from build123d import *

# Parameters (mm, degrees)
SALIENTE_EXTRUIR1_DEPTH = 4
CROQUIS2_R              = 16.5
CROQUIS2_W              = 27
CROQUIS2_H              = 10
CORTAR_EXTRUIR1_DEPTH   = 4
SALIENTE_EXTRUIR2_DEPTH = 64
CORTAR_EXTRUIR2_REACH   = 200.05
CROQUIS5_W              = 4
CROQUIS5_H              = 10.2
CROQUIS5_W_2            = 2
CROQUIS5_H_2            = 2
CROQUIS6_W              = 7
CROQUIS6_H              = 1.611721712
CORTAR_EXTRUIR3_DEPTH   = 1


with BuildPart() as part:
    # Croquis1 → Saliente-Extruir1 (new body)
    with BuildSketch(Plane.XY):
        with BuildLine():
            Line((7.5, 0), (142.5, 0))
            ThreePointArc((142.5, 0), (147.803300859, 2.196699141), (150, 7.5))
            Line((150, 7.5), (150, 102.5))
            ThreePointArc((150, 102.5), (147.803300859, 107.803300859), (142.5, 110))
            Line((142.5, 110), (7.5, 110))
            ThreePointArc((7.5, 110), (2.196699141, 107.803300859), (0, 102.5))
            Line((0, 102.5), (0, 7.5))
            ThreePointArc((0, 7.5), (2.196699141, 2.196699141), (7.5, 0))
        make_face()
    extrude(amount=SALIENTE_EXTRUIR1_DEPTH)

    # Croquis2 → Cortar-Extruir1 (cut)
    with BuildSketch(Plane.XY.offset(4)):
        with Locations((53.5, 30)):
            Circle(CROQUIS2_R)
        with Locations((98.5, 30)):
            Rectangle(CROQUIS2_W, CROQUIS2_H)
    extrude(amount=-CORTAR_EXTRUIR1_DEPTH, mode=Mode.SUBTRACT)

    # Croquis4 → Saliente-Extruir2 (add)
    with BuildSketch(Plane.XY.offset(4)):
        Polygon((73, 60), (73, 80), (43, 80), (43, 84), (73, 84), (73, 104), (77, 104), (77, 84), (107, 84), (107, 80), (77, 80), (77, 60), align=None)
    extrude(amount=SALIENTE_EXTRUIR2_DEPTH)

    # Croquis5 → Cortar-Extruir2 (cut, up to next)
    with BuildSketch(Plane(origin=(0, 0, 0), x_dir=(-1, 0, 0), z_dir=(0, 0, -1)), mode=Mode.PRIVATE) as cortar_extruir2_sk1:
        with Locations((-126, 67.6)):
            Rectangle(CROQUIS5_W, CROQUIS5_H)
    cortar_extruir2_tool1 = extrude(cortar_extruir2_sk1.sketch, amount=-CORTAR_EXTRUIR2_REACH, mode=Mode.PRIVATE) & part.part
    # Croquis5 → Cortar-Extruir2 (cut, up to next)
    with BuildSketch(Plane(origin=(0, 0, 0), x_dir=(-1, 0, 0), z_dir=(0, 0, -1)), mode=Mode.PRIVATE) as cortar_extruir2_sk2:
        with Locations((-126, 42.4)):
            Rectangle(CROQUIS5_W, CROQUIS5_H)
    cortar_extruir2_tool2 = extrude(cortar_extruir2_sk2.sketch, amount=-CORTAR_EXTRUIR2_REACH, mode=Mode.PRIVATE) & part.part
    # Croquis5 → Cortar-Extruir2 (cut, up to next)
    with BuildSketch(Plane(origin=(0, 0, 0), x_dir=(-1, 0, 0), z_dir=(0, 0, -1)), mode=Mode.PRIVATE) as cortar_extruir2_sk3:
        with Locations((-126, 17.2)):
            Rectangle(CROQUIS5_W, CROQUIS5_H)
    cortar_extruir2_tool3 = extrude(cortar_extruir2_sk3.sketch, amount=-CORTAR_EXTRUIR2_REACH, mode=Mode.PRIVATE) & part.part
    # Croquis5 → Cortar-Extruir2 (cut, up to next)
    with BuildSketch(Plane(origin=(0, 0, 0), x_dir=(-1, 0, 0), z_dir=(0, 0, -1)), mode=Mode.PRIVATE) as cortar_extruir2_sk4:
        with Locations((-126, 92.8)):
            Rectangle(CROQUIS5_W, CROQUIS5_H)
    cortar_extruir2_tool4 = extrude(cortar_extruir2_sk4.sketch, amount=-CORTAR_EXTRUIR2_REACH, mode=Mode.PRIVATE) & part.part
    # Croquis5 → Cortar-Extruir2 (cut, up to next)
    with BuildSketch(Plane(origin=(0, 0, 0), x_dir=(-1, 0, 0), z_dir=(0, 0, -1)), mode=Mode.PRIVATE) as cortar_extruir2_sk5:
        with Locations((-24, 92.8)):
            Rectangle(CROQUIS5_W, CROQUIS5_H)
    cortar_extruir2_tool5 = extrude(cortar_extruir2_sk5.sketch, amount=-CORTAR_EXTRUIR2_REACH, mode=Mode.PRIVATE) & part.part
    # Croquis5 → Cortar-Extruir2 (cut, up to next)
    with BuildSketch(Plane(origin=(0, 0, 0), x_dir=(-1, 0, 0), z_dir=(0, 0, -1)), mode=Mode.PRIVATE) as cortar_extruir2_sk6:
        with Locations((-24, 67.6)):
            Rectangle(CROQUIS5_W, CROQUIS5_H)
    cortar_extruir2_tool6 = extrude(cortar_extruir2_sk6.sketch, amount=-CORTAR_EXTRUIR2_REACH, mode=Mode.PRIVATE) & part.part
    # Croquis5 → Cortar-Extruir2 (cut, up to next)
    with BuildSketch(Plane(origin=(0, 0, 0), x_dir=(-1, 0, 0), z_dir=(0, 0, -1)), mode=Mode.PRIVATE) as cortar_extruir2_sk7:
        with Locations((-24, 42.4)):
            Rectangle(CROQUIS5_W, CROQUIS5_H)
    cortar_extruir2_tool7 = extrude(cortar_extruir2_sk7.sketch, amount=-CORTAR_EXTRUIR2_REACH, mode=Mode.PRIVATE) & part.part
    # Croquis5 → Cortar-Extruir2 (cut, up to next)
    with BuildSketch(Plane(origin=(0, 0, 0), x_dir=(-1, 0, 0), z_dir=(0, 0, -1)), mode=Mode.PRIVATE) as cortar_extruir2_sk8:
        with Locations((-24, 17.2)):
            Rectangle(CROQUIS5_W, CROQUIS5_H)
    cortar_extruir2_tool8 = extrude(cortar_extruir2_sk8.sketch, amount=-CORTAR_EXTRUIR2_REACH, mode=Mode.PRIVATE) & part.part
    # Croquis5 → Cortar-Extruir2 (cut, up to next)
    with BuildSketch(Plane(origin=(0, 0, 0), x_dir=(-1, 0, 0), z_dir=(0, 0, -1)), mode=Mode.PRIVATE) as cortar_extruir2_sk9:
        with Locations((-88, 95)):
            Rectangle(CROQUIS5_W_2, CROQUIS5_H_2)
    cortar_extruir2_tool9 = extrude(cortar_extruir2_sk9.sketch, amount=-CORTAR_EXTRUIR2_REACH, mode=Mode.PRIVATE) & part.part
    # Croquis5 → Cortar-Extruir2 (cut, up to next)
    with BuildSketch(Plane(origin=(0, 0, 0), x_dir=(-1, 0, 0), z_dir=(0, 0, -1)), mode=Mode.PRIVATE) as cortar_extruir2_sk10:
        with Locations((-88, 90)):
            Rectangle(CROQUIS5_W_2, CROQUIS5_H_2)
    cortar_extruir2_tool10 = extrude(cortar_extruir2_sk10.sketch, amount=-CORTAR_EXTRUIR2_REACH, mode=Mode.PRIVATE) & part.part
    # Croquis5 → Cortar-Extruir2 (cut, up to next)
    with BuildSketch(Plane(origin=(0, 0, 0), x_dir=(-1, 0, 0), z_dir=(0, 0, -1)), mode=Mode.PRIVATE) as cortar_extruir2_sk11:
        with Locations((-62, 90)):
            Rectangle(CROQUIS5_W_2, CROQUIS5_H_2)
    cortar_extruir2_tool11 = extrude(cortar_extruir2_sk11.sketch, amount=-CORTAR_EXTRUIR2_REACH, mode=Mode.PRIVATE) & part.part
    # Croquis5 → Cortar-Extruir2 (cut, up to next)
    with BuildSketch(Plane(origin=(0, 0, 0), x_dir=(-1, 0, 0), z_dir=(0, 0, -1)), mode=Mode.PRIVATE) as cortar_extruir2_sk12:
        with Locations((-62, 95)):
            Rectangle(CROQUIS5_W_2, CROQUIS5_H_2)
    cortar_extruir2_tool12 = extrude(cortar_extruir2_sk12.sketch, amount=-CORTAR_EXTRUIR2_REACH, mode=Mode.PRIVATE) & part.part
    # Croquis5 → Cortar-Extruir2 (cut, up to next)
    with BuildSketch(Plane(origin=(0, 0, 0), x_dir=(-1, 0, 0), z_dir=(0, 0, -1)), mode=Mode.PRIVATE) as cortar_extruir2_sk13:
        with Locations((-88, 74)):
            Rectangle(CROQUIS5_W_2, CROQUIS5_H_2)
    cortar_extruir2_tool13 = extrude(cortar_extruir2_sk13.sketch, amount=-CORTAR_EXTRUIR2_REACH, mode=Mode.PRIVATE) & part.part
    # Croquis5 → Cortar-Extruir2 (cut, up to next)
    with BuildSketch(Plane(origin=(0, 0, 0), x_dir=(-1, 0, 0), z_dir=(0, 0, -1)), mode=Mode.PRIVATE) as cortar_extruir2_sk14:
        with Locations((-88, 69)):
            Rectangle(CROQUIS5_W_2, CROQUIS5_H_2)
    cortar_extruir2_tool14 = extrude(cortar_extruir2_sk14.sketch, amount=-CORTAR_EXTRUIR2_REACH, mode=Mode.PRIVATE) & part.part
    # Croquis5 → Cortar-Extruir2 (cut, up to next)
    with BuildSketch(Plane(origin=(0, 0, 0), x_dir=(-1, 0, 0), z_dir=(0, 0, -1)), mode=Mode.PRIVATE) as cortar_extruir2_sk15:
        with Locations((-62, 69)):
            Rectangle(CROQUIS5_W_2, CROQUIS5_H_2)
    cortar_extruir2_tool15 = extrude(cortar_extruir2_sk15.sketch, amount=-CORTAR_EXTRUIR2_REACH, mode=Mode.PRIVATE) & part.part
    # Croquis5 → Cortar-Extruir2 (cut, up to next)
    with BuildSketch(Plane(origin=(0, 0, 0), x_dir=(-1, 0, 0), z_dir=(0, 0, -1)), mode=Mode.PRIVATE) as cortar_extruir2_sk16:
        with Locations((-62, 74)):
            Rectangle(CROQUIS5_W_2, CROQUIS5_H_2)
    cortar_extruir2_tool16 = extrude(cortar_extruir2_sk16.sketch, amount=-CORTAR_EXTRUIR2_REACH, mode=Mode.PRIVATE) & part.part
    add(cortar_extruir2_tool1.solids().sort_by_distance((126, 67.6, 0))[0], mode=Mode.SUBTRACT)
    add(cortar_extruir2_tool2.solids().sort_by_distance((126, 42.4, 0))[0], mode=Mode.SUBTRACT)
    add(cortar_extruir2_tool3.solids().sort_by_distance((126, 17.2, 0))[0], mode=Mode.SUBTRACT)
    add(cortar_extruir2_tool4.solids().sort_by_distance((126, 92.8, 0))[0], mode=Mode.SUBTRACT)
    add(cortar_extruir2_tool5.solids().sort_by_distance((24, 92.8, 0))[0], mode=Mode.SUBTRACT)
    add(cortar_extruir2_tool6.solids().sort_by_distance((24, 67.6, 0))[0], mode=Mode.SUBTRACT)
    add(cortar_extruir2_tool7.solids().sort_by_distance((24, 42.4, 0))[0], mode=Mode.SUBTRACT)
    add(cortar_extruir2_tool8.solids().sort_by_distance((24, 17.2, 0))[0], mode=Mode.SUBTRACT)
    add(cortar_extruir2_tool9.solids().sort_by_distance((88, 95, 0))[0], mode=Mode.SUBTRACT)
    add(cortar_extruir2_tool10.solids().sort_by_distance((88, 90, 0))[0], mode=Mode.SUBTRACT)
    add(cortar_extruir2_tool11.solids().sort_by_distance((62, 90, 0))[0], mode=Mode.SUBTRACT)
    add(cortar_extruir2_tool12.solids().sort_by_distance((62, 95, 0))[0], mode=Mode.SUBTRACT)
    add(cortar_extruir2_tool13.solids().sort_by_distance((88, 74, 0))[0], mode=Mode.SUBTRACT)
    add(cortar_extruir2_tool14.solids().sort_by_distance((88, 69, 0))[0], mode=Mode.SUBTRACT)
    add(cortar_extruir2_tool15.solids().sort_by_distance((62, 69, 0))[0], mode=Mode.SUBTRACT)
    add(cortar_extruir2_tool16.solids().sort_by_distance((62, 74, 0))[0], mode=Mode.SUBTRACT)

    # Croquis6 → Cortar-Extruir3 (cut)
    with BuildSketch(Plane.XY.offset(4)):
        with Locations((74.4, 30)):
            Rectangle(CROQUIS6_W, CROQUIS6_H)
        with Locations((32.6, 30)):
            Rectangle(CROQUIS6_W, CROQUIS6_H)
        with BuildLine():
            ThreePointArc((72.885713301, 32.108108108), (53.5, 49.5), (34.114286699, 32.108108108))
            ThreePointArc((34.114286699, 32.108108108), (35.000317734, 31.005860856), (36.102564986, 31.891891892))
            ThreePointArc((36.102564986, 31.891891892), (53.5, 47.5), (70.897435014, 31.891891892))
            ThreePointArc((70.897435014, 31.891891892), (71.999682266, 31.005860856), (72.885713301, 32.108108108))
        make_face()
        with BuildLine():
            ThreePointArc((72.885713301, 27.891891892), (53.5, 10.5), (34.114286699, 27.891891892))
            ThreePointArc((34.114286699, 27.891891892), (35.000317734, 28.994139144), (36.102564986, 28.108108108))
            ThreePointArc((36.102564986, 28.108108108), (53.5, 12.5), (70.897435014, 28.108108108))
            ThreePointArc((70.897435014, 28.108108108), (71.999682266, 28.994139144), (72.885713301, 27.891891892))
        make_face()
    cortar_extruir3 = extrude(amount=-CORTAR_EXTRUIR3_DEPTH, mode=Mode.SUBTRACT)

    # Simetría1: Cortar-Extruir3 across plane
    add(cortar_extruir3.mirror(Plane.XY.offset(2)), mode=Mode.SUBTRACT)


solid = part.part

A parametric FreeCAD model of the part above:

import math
import FreeCAD as App
import Part
import Sketcher


def add_polygon(sketch, points):
    """Adds a closed chain of lines whose ends are joined by coincident constraints."""
    first, n = sketch.GeometryCount, len(points)
    for a, b in zip(points, points[1:] + points[:1]):
        sketch.addGeometry(Part.LineSegment(App.Vector(*a, 0), App.Vector(*b, 0)), False)
    for i in range(n):
        sketch.addConstraint(Sketcher.Constraint("Coincident", first + i, 2, first + (i + 1) % n, 1))

doc = App.newDocument("Part")
body = doc.addObject("PartDesign::Body", "Body")

# Sketch on XY plane
sketch1 = body.newObject("Sketcher::SketchObject", "Sketch")
sketch1.AttachmentSupport = (doc.getObject("XY_Plane"), [""])
sketch1.MapMode = "FlatFace"
sketch1.addGeometry(Part.LineSegment(App.Vector(8, 0, 0), App.Vector(142, 0, 0)), False)
sketch1.addGeometry(Part.ArcOfCircle(Part.Circle(App.Vector(142, 8, 0), App.Vector(0, 0, 1), 8), math.radians(-90), math.radians(0)), False)
sketch1.addGeometry(Part.LineSegment(App.Vector(150, 8, 0), App.Vector(150, 102, 0)), False)
sketch1.addGeometry(Part.ArcOfCircle(Part.Circle(App.Vector(142, 102, 0), App.Vector(0, 0, 1), 8), math.radians(0), math.radians(90)), False)
sketch1.addGeometry(Part.LineSegment(App.Vector(142, 110, 0), App.Vector(8, 110, 0)), False)
sketch1.addGeometry(Part.ArcOfCircle(Part.Circle(App.Vector(8, 102, 0), App.Vector(0, 0, 1), 8), math.radians(90), math.radians(180)), False)
sketch1.addGeometry(Part.LineSegment(App.Vector(0, 102, 0), App.Vector(0, 8, 0)), False)
sketch1.addGeometry(Part.ArcOfCircle(Part.Circle(App.Vector(8, 8, 0), App.Vector(0, 0, 1), 8), math.radians(180), math.radians(270)), False)
sketch1.addConstraint(Sketcher.Constraint("Tangent", 0, 2, 1, 1))
sketch1.addConstraint(Sketcher.Constraint("Tangent", 1, 2, 2, 1))
sketch1.addConstraint(Sketcher.Constraint("Tangent", 2, 2, 3, 1))
sketch1.addConstraint(Sketcher.Constraint("Tangent", 3, 2, 4, 1))
sketch1.addConstraint(Sketcher.Constraint("Tangent", 4, 2, 5, 1))
sketch1.addConstraint(Sketcher.Constraint("Tangent", 5, 2, 6, 1))
sketch1.addConstraint(Sketcher.Constraint("Tangent", 6, 2, 7, 1))
sketch1.addConstraint(Sketcher.Constraint("Tangent", 7, 2, 0, 1))
sketch1.addConstraint(Sketcher.Constraint("Horizontal", 0))
sketch1.addConstraint(Sketcher.Constraint("Vertical", 2))
sketch1.addConstraint(Sketcher.Constraint("Horizontal", 4))
sketch1.addConstraint(Sketcher.Constraint("Vertical", 6))
sketch1.addConstraint(Sketcher.Constraint("Equal", 1, 3))
sketch1.addConstraint(Sketcher.Constraint("Equal", 3, 5))
sketch1.addConstraint(Sketcher.Constraint("Equal", 5, 7))
sketch1.addConstraint(Sketcher.Constraint("PointOnObject", 0, 2, -1))
sketch1.addConstraint(Sketcher.Constraint("PointOnObject", 5, 2, -2))
sketch1.addConstraint(Sketcher.Constraint("Radius", 1, 7.5))
sketch1.addConstraint(Sketcher.Constraint("DistanceX", 0, 1, 0, 2, 135.0))
sketch1.addConstraint(Sketcher.Constraint("DistanceY", 2, 1, 2, 2, 95.0))
pad1 = body.newObject("PartDesign::Pad", "Pad")
pad1.Profile = sketch1
pad1.Length = 4

# Sketch on XY plane
sketch2 = body.newObject("Sketcher::SketchObject", "Sketch001")
sketch2.AttachmentSupport = (doc.getObject("XY_Plane"), [""])
sketch2.MapMode = "FlatFace"
sketch2.AttachmentOffset = App.Placement(App.Vector(0, 0, 4), App.Rotation())
sketch2.addGeometry(Part.Circle(App.Vector(54, 30, 0), App.Vector(0, 0, 1), 16), False)  # 0
add_polygon(sketch2, [(85, 35), (85, 25), (112, 25), (112, 35)])  # lines 1-4
sketch2.addConstraint(Sketcher.Constraint("Vertical", 1))
sketch2.addConstraint(Sketcher.Constraint("Horizontal", 2))
sketch2.addConstraint(Sketcher.Constraint("Vertical", 3))
sketch2.addConstraint(Sketcher.Constraint("Horizontal", 4))
sketch2.addConstraint(Sketcher.Constraint("Diameter", 0, 33.0))
sketch2.addConstraint(Sketcher.Constraint("DistanceX", 2, 1, 2, 2, 27.0))
sketch2.addConstraint(Sketcher.Constraint("DistanceY", 1, 2, 1, 1, 10.0))
sketch2.addConstraint(Sketcher.Constraint("DistanceY", -1, 1, 0, 3, 30.0))
sketch2.addConstraint(Sketcher.Constraint("DistanceX", -1, 1, 1, 2, 85.0))
sketch2.addConstraint(Sketcher.Constraint("DistanceY", -1, 1, 1, 2, 25.0))
sketch2.addConstraint(Sketcher.Constraint("DistanceX", -1, 1, 0, 3, 53.5))
pocket1 = body.newObject("PartDesign::Pocket", "Pocket")
pocket1.Profile = sketch2
pocket1.Length = 4

# Sketch on XY plane
sketch3 = body.newObject("Sketcher::SketchObject", "Sketch002")
sketch3.AttachmentSupport = (doc.getObject("XY_Plane"), [""])
sketch3.MapMode = "FlatFace"
sketch3.AttachmentOffset = App.Placement(App.Vector(0, 0, 4), App.Rotation())
add_polygon(sketch3, [(73, 80), (73, 60), (77, 60), (77, 80), (107, 80), (107, 84), (77, 84), (77, 104), (73, 104), (73, 84), (43, 84), (43, 80)])  # lines 0-11
sketch3.addConstraint(Sketcher.Constraint("Vertical", 0))
sketch3.addConstraint(Sketcher.Constraint("Horizontal", 1))
sketch3.addConstraint(Sketcher.Constraint("Vertical", 2))
sketch3.addConstraint(Sketcher.Constraint("Horizontal", 3))
sketch3.addConstraint(Sketcher.Constraint("Vertical", 4))
sketch3.addConstraint(Sketcher.Constraint("Horizontal", 5))
sketch3.addConstraint(Sketcher.Constraint("Vertical", 6))
sketch3.addConstraint(Sketcher.Constraint("Horizontal", 7))
sketch3.addConstraint(Sketcher.Constraint("Vertical", 8))
sketch3.addConstraint(Sketcher.Constraint("Horizontal", 9))
sketch3.addConstraint(Sketcher.Constraint("Vertical", 10))
sketch3.addConstraint(Sketcher.Constraint("Horizontal", 11))
sketch3.addConstraint(Sketcher.Constraint("Horizontal", 5, 2, 8, 2))
sketch3.addConstraint(Sketcher.Constraint("Horizontal", 3, 2, 10, 2))
sketch3.addConstraint(Sketcher.Constraint("Vertical", 2, 2, 5, 2))
sketch3.addConstraint(Sketcher.Constraint("Vertical", 0, 2, 7, 2))
sketch3.addConstraint(Sketcher.Constraint("Equal", 5, 9))
sketch3.addConstraint(Sketcher.Constraint("Equal", 7, 4))
sketch3.addConstraint(Sketcher.Constraint("Equal", 2, 6))
sketch3.addConstraint(Sketcher.Constraint("DistanceX", 1, 1, 1, 2, 4.0))
sketch3.addConstraint(Sketcher.Constraint("DistanceX", 3, 1, 3, 2, 30.0))
sketch3.addConstraint(Sketcher.Constraint("DistanceY", 0, 2, 0, 1, 20.0))
sketch3.addConstraint(Sketcher.Constraint("DistanceX", -1, 1, 0, 2, 73.0))
sketch3.addConstraint(Sketcher.Constraint("DistanceY", -1, 1, 0, 2, 60.0))
pad2 = body.newObject("PartDesign::Pad", "Pad001")
pad2.Profile = sketch3
pad2.Length = 64

# Sketch on XY plane
sketch4 = body.newObject("Sketcher::SketchObject", "Sketch003")
sketch4.AttachmentSupport = (doc.getObject("XY_Plane"), [""])
sketch4.MapMode = "FlatFace"
add_polygon(sketch4, [(128, 72.7), (128, 62.5), (124, 62.5), (124, 72.7)])  # lines 0-3
sketch4.addConstraint(Sketcher.Constraint("Vertical", 0))
sketch4.addConstraint(Sketcher.Constraint("Horizontal", 1))
sketch4.addConstraint(Sketcher.Constraint("Vertical", 2))
sketch4.addConstraint(Sketcher.Constraint("Horizontal", 3))
sketch4.addConstraint(Sketcher.Constraint("DistanceX", 1, 2, 1, 1, 4.0))
sketch4.addConstraint(Sketcher.Constraint("DistanceY", 0, 2, 0, 1, 10.2))
sketch4.addConstraint(Sketcher.Constraint("DistanceX", -1, 1, 0, 2, 128.0))
sketch4.addConstraint(Sketcher.Constraint("DistanceY", -1, 1, 0, 2, 62.5))
pocket2 = body.newObject("PartDesign::Pocket", "Pocket001")
pocket2.Profile = sketch4
pocket2.Type = "UpToFirst"
pocket2.Reversed = True

# Sketch on XY plane
sketch5 = body.newObject("Sketcher::SketchObject", "Sketch004")
sketch5.AttachmentSupport = (doc.getObject("XY_Plane"), [""])
sketch5.MapMode = "FlatFace"
add_polygon(sketch5, [(128, 47.5), (128, 37.3), (124, 37.3), (124, 47.5)])  # lines 0-3
sketch5.addConstraint(Sketcher.Constraint("Vertical", 0))
sketch5.addConstraint(Sketcher.Constraint("Horizontal", 1))
sketch5.addConstraint(Sketcher.Constraint("Vertical", 2))
sketch5.addConstraint(Sketcher.Constraint("Horizontal", 3))
sketch5.addConstraint(Sketcher.Constraint("DistanceX", 1, 2, 1, 1, 4.0))
sketch5.addConstraint(Sketcher.Constraint("DistanceY", 0, 2, 0, 1, 10.2))
sketch5.addConstraint(Sketcher.Constraint("DistanceX", -1, 1, 0, 2, 128.0))
sketch5.addConstraint(Sketcher.Constraint("DistanceY", -1, 1, 0, 2, 37.3))
pocket3 = body.newObject("PartDesign::Pocket", "Pocket002")
pocket3.Profile = sketch5
pocket3.Type = "UpToFirst"
pocket3.Reversed = True

# Sketch on XY plane
sketch6 = body.newObject("Sketcher::SketchObject", "Sketch005")
sketch6.AttachmentSupport = (doc.getObject("XY_Plane"), [""])
sketch6.MapMode = "FlatFace"
add_polygon(sketch6, [(128, 22.3), (128, 12.1), (124, 12.1), (124, 22.3)])  # lines 0-3
sketch6.addConstraint(Sketcher.Constraint("Vertical", 0))
sketch6.addConstraint(Sketcher.Constraint("Horizontal", 1))
sketch6.addConstraint(Sketcher.Constraint("Vertical", 2))
sketch6.addConstraint(Sketcher.Constraint("Horizontal", 3))
sketch6.addConstraint(Sketcher.Constraint("DistanceX", 1, 2, 1, 1, 4.0))
sketch6.addConstraint(Sketcher.Constraint("DistanceY", 0, 2, 0, 1, 10.2))
sketch6.addConstraint(Sketcher.Constraint("DistanceX", -1, 1, 0, 2, 128.0))
sketch6.addConstraint(Sketcher.Constraint("DistanceY", -1, 1, 0, 2, 12.1))
pocket4 = body.newObject("PartDesign::Pocket", "Pocket003")
pocket4.Profile = sketch6
pocket4.Type = "UpToFirst"
pocket4.Reversed = True

# Sketch on XY plane
sketch7 = body.newObject("Sketcher::SketchObject", "Sketch006")
sketch7.AttachmentSupport = (doc.getObject("XY_Plane"), [""])
sketch7.MapMode = "FlatFace"
add_polygon(sketch7, [(128, 97.9), (128, 87.7), (124, 87.7), (124, 97.9)])  # lines 0-3
sketch7.addConstraint(Sketcher.Constraint("Vertical", 0))
sketch7.addConstraint(Sketcher.Constraint("Horizontal", 1))
sketch7.addConstraint(Sketcher.Constraint("Vertical", 2))
sketch7.addConstraint(Sketcher.Constraint("Horizontal", 3))
sketch7.addConstraint(Sketcher.Constraint("DistanceX", 1, 2, 1, 1, 4.0))
sketch7.addConstraint(Sketcher.Constraint("DistanceY", 0, 2, 0, 1, 10.2))
sketch7.addConstraint(Sketcher.Constraint("DistanceX", -1, 1, 0, 2, 128.0))
sketch7.addConstraint(Sketcher.Constraint("DistanceY", -1, 1, 0, 2, 87.7))
pocket5 = body.newObject("PartDesign::Pocket", "Pocket004")
pocket5.Profile = sketch7
pocket5.Type = "UpToFirst"
pocket5.Reversed = True

# Sketch on XY plane
sketch8 = body.newObject("Sketcher::SketchObject", "Sketch007")
sketch8.AttachmentSupport = (doc.getObject("XY_Plane"), [""])
sketch8.MapMode = "FlatFace"
add_polygon(sketch8, [(26, 97.9), (26, 87.7), (22, 87.7), (22, 97.9)])  # lines 0-3
sketch8.addConstraint(Sketcher.Constraint("Vertical", 0))
sketch8.addConstraint(Sketcher.Constraint("Horizontal", 1))
sketch8.addConstraint(Sketcher.Constraint("Vertical", 2))
sketch8.addConstraint(Sketcher.Constraint("Horizontal", 3))
sketch8.addConstraint(Sketcher.Constraint("DistanceX", 1, 2, 1, 1, 4.0))
sketch8.addConstraint(Sketcher.Constraint("DistanceY", 0, 2, 0, 1, 10.2))
sketch8.addConstraint(Sketcher.Constraint("DistanceX", -1, 1, 0, 2, 26.0))
sketch8.addConstraint(Sketcher.Constraint("DistanceY", -1, 1, 0, 2, 87.7))
pocket6 = body.newObject("PartDesign::Pocket", "Pocket005")
pocket6.Profile = sketch8
pocket6.Type = "UpToFirst"
pocket6.Reversed = True

# Sketch on XY plane
sketch9 = body.newObject("Sketcher::SketchObject", "Sketch008")
sketch9.AttachmentSupport = (doc.getObject("XY_Plane"), [""])
sketch9.MapMode = "FlatFace"
add_polygon(sketch9, [(26, 72.7), (26, 62.5), (22, 62.5), (22, 72.7)])  # lines 0-3
sketch9.addConstraint(Sketcher.Constraint("Vertical", 0))
sketch9.addConstraint(Sketcher.Constraint("Horizontal", 1))
sketch9.addConstraint(Sketcher.Constraint("Vertical", 2))
sketch9.addConstraint(Sketcher.Constraint("Horizontal", 3))
sketch9.addConstraint(Sketcher.Constraint("DistanceX", 1, 2, 1, 1, 4.0))
sketch9.addConstraint(Sketcher.Constraint("DistanceY", 0, 2, 0, 1, 10.2))
sketch9.addConstraint(Sketcher.Constraint("DistanceX", -1, 1, 0, 2, 26.0))
sketch9.addConstraint(Sketcher.Constraint("DistanceY", -1, 1, 0, 2, 62.5))
pocket7 = body.newObject("PartDesign::Pocket", "Pocket006")
pocket7.Profile = sketch9
pocket7.Type = "UpToFirst"
pocket7.Reversed = True

# Sketch on XY plane
sketch10 = body.newObject("Sketcher::SketchObject", "Sketch009")
sketch10.AttachmentSupport = (doc.getObject("XY_Plane"), [""])
sketch10.MapMode = "FlatFace"
add_polygon(sketch10, [(26, 47.5), (26, 37.3), (22, 37.3), (22, 47.5)])  # lines 0-3
sketch10.addConstraint(Sketcher.Constraint("Vertical", 0))
sketch10.addConstraint(Sketcher.Constraint("Horizontal", 1))
sketch10.addConstraint(Sketcher.Constraint("Vertical", 2))
sketch10.addConstraint(Sketcher.Constraint("Horizontal", 3))
sketch10.addConstraint(Sketcher.Constraint("DistanceX", 1, 2, 1, 1, 4.0))
sketch10.addConstraint(Sketcher.Constraint("DistanceY", 0, 2, 0, 1, 10.2))
sketch10.addConstraint(Sketcher.Constraint("DistanceX", -1, 1, 0, 2, 26.0))
sketch10.addConstraint(Sketcher.Constraint("DistanceY", -1, 1, 0, 2, 37.3))
pocket8 = body.newObject("PartDesign::Pocket", "Pocket007")
pocket8.Profile = sketch10
pocket8.Type = "UpToFirst"
pocket8.Reversed = True

# Sketch on XY plane
sketch11 = body.newObject("Sketcher::SketchObject", "Sketch010")
sketch11.AttachmentSupport = (doc.getObject("XY_Plane"), [""])
sketch11.MapMode = "FlatFace"
add_polygon(sketch11, [(26, 22.3), (26, 12.1), (22, 12.1), (22, 22.3)])  # lines 0-3
sketch11.addConstraint(Sketcher.Constraint("Vertical", 0))
sketch11.addConstraint(Sketcher.Constraint("Horizontal", 1))
sketch11.addConstraint(Sketcher.Constraint("Vertical", 2))
sketch11.addConstraint(Sketcher.Constraint("Horizontal", 3))
sketch11.addConstraint(Sketcher.Constraint("DistanceX", 1, 2, 1, 1, 4.0))
sketch11.addConstraint(Sketcher.Constraint("DistanceY", 0, 2, 0, 1, 10.2))
sketch11.addConstraint(Sketcher.Constraint("DistanceX", -1, 1, 0, 2, 26.0))
sketch11.addConstraint(Sketcher.Constraint("DistanceY", -1, 1, 0, 2, 12.1))
pocket9 = body.newObject("PartDesign::Pocket", "Pocket008")
pocket9.Profile = sketch11
pocket9.Type = "UpToFirst"
pocket9.Reversed = True

# Sketch on XY plane
sketch12 = body.newObject("Sketcher::SketchObject", "Sketch011")
sketch12.AttachmentSupport = (doc.getObject("XY_Plane"), [""])
sketch12.MapMode = "FlatFace"
add_polygon(sketch12, [(89, 96), (89, 94), (87, 94), (87, 96)])  # lines 0-3
sketch12.addConstraint(Sketcher.Constraint("Vertical", 0))
sketch12.addConstraint(Sketcher.Constraint("Horizontal", 1))
sketch12.addConstraint(Sketcher.Constraint("Vertical", 2))
sketch12.addConstraint(Sketcher.Constraint("Horizontal", 3))
sketch12.addConstraint(Sketcher.Constraint("Equal", 3, 0))
sketch12.addConstraint(Sketcher.Constraint("DistanceX", 1, 2, 1, 1, 2.0))
sketch12.addConstraint(Sketcher.Constraint("DistanceX", -1, 1, 0, 2, 89.0))
sketch12.addConstraint(Sketcher.Constraint("DistanceY", -1, 1, 0, 2, 94.0))
pocket10 = body.newObject("PartDesign::Pocket", "Pocket009")
pocket10.Profile = sketch12
pocket10.Type = "UpToFirst"
pocket10.Reversed = True

# Sketch on XY plane
sketch13 = body.newObject("Sketcher::SketchObject", "Sketch012")
sketch13.AttachmentSupport = (doc.getObject("XY_Plane"), [""])
sketch13.MapMode = "FlatFace"
add_polygon(sketch13, [(89, 91), (89, 89), (87, 89), (87, 91)])  # lines 0-3
sketch13.addConstraint(Sketcher.Constraint("Vertical", 0))
sketch13.addConstraint(Sketcher.Constraint("Horizontal", 1))
sketch13.addConstraint(Sketcher.Constraint("Vertical", 2))
sketch13.addConstraint(Sketcher.Constraint("Horizontal", 3))
sketch13.addConstraint(Sketcher.Constraint("Equal", 3, 0))
sketch13.addConstraint(Sketcher.Constraint("DistanceX", 1, 2, 1, 1, 2.0))
sketch13.addConstraint(Sketcher.Constraint("DistanceX", -1, 1, 0, 2, 89.0))
sketch13.addConstraint(Sketcher.Constraint("DistanceY", -1, 1, 0, 2, 89.0))
pocket11 = body.newObject("PartDesign::Pocket", "Pocket010")
pocket11.Profile = sketch13
pocket11.Type = "UpToFirst"
pocket11.Reversed = True

# Sketch on XY plane
sketch14 = body.newObject("Sketcher::SketchObject", "Sketch013")
sketch14.AttachmentSupport = (doc.getObject("XY_Plane"), [""])
sketch14.MapMode = "FlatFace"
add_polygon(sketch14, [(63, 91), (63, 89), (61, 89), (61, 91)])  # lines 0-3
sketch14.addConstraint(Sketcher.Constraint("Vertical", 0))
sketch14.addConstraint(Sketcher.Constraint("Horizontal", 1))
sketch14.addConstraint(Sketcher.Constraint("Vertical", 2))
sketch14.addConstraint(Sketcher.Constraint("Horizontal", 3))
sketch14.addConstraint(Sketcher.Constraint("Equal", 3, 0))
sketch14.addConstraint(Sketcher.Constraint("DistanceX", 1, 2, 1, 1, 2.0))
sketch14.addConstraint(Sketcher.Constraint("DistanceX", -1, 1, 0, 2, 63.0))
sketch14.addConstraint(Sketcher.Constraint("DistanceY", -1, 1, 0, 2, 89.0))
pocket12 = body.newObject("PartDesign::Pocket", "Pocket011")
pocket12.Profile = sketch14
pocket12.Type = "UpToFirst"
pocket12.Reversed = True

# Sketch on XY plane
sketch15 = body.newObject("Sketcher::SketchObject", "Sketch014")
sketch15.AttachmentSupport = (doc.getObject("XY_Plane"), [""])
sketch15.MapMode = "FlatFace"
add_polygon(sketch15, [(63, 96), (63, 94), (61, 94), (61, 96)])  # lines 0-3
sketch15.addConstraint(Sketcher.Constraint("Vertical", 0))
sketch15.addConstraint(Sketcher.Constraint("Horizontal", 1))
sketch15.addConstraint(Sketcher.Constraint("Vertical", 2))
sketch15.addConstraint(Sketcher.Constraint("Horizontal", 3))
sketch15.addConstraint(Sketcher.Constraint("Equal", 3, 0))
sketch15.addConstraint(Sketcher.Constraint("DistanceX", 1, 2, 1, 1, 2.0))
sketch15.addConstraint(Sketcher.Constraint("DistanceX", -1, 1, 0, 2, 63.0))
sketch15.addConstraint(Sketcher.Constraint("DistanceY", -1, 1, 0, 2, 94.0))
pocket13 = body.newObject("PartDesign::Pocket", "Pocket012")
pocket13.Profile = sketch15
pocket13.Type = "UpToFirst"
pocket13.Reversed = True

# Sketch on XY plane
sketch16 = body.newObject("Sketcher::SketchObject", "Sketch015")
sketch16.AttachmentSupport = (doc.getObject("XY_Plane"), [""])
sketch16.MapMode = "FlatFace"
add_polygon(sketch16, [(89, 75), (89, 73), (87, 73), (87, 75)])  # lines 0-3
sketch16.addConstraint(Sketcher.Constraint("Vertical", 0))
sketch16.addConstraint(Sketcher.Constraint("Horizontal", 1))
sketch16.addConstraint(Sketcher.Constraint("Vertical", 2))
sketch16.addConstraint(Sketcher.Constraint("Horizontal", 3))
sketch16.addConstraint(Sketcher.Constraint("Equal", 3, 0))
sketch16.addConstraint(Sketcher.Constraint("DistanceX", 1, 2, 1, 1, 2.0))
sketch16.addConstraint(Sketcher.Constraint("DistanceX", -1, 1, 0, 2, 89.0))
sketch16.addConstraint(Sketcher.Constraint("DistanceY", -1, 1, 0, 2, 73.0))
pocket14 = body.newObject("PartDesign::Pocket", "Pocket013")
pocket14.Profile = sketch16
pocket14.Type = "UpToFirst"
pocket14.Reversed = True

# Sketch on XY plane
sketch17 = body.newObject("Sketcher::SketchObject", "Sketch016")
sketch17.AttachmentSupport = (doc.getObject("XY_Plane"), [""])
sketch17.MapMode = "FlatFace"
add_polygon(sketch17, [(89, 70), (89, 68), (87, 68), (87, 70)])  # lines 0-3
sketch17.addConstraint(Sketcher.Constraint("Vertical", 0))
sketch17.addConstraint(Sketcher.Constraint("Horizontal", 1))
sketch17.addConstraint(Sketcher.Constraint("Vertical", 2))
sketch17.addConstraint(Sketcher.Constraint("Horizontal", 3))
sketch17.addConstraint(Sketcher.Constraint("Equal", 3, 0))
sketch17.addConstraint(Sketcher.Constraint("DistanceX", 1, 2, 1, 1, 2.0))
sketch17.addConstraint(Sketcher.Constraint("DistanceX", -1, 1, 0, 2, 89.0))
sketch17.addConstraint(Sketcher.Constraint("DistanceY", -1, 1, 0, 2, 68.0))
pocket15 = body.newObject("PartDesign::Pocket", "Pocket014")
pocket15.Profile = sketch17
pocket15.Type = "UpToFirst"
pocket15.Reversed = True

# Sketch on XY plane
sketch18 = body.newObject("Sketcher::SketchObject", "Sketch017")
sketch18.AttachmentSupport = (doc.getObject("XY_Plane"), [""])
sketch18.MapMode = "FlatFace"
add_polygon(sketch18, [(63, 70), (63, 68), (61, 68), (61, 70)])  # lines 0-3
sketch18.addConstraint(Sketcher.Constraint("Vertical", 0))
sketch18.addConstraint(Sketcher.Constraint("Horizontal", 1))
sketch18.addConstraint(Sketcher.Constraint("Vertical", 2))
sketch18.addConstraint(Sketcher.Constraint("Horizontal", 3))
sketch18.addConstraint(Sketcher.Constraint("Equal", 3, 0))
sketch18.addConstraint(Sketcher.Constraint("DistanceX", 1, 2, 1, 1, 2.0))
sketch18.addConstraint(Sketcher.Constraint("DistanceX", -1, 1, 0, 2, 63.0))
sketch18.addConstraint(Sketcher.Constraint("DistanceY", -1, 1, 0, 2, 68.0))
pocket16 = body.newObject("PartDesign::Pocket", "Pocket015")
pocket16.Profile = sketch18
pocket16.Type = "UpToFirst"
pocket16.Reversed = True

# Sketch on XY plane
sketch19 = body.newObject("Sketcher::SketchObject", "Sketch018")
sketch19.AttachmentSupport = (doc.getObject("XY_Plane"), [""])
sketch19.MapMode = "FlatFace"
add_polygon(sketch19, [(63, 75), (63, 73), (61, 73), (61, 75)])  # lines 0-3
sketch19.addConstraint(Sketcher.Constraint("Vertical", 0))
sketch19.addConstraint(Sketcher.Constraint("Horizontal", 1))
sketch19.addConstraint(Sketcher.Constraint("Vertical", 2))
sketch19.addConstraint(Sketcher.Constraint("Horizontal", 3))
sketch19.addConstraint(Sketcher.Constraint("Equal", 3, 0))
sketch19.addConstraint(Sketcher.Constraint("DistanceX", 1, 2, 1, 1, 2.0))
sketch19.addConstraint(Sketcher.Constraint("DistanceX", -1, 1, 0, 2, 63.0))
sketch19.addConstraint(Sketcher.Constraint("DistanceY", -1, 1, 0, 2, 73.0))
pocket17 = body.newObject("PartDesign::Pocket", "Pocket016")
pocket17.Profile = sketch19
pocket17.Type = "UpToFirst"
pocket17.Reversed = True

# Sketch on XY plane
sketch20 = body.newObject("Sketcher::SketchObject", "Sketch019")
sketch20.AttachmentSupport = (doc.getObject("XY_Plane"), [""])
sketch20.MapMode = "FlatFace"
sketch20.AttachmentOffset = App.Placement(App.Vector(0, 0, 4), App.Rotation())
add_polygon(sketch20, [(70.9, 30.8), (70.9, 29.2), (77.9, 29.2), (77.9, 30.8)])  # lines 0-3
add_polygon(sketch20, [(29.1, 30.8), (29.1, 29.2), (36.1, 29.2), (36.1, 30.8)])  # lines 4-7
sketch20.addGeometry(Part.ArcOfCircle(Part.Circle(App.Vector(53.5, 30, 0), App.Vector(0, 0, 1), 19.5), math.radians(6), math.radians(174)), False)  # 8
sketch20.addGeometry(Part.ArcOfCircle(Part.Circle(App.Vector(35.1, 32, 0), App.Vector(0, 0, 1), 1), math.radians(174), math.radians(354)), False)  # 9
sketch20.addGeometry(Part.ArcOfCircle(Part.Circle(App.Vector(53.5, 30, 0), App.Vector(0, 0, 1), 17.5), math.radians(6), math.radians(174)), False)  # 10
sketch20.addGeometry(Part.ArcOfCircle(Part.Circle(App.Vector(71.9, 32, 0), App.Vector(0, 0, 1), 1), math.radians(-174), math.radians(6)), False)  # 11
sketch20.addGeometry(Part.ArcOfCircle(Part.Circle(App.Vector(53.5, 30, 0), App.Vector(0, 0, 1), 19.5), math.radians(-174), math.radians(-6)), False)  # 12
sketch20.addGeometry(Part.ArcOfCircle(Part.Circle(App.Vector(71.9, 28, 0), App.Vector(0, 0, 1), 1), math.radians(-6), math.radians(174)), False)  # 13
sketch20.addGeometry(Part.ArcOfCircle(Part.Circle(App.Vector(53.5, 30, 0), App.Vector(0, 0, 1), 17.5), math.radians(-174), math.radians(-6)), False)  # 14
sketch20.addGeometry(Part.ArcOfCircle(Part.Circle(App.Vector(35.1, 28, 0), App.Vector(0, 0, 1), 1), math.radians(6), math.radians(186)), False)  # 15
sketch20.addConstraint(Sketcher.Constraint("Tangent", 8, 2, 9, 1))
sketch20.addConstraint(Sketcher.Constraint("Tangent", 9, 2, 10, 2))
sketch20.addConstraint(Sketcher.Constraint("Tangent", 10, 1, 11, 1))
sketch20.addConstraint(Sketcher.Constraint("Tangent", 11, 2, 8, 1))
sketch20.addConstraint(Sketcher.Constraint("Tangent", 12, 2, 13, 1))
sketch20.addConstraint(Sketcher.Constraint("Tangent", 13, 2, 14, 2))
sketch20.addConstraint(Sketcher.Constraint("Tangent", 14, 1, 15, 1))
sketch20.addConstraint(Sketcher.Constraint("Tangent", 15, 2, 12, 1))
sketch20.addConstraint(Sketcher.Constraint("Vertical", 0))
sketch20.addConstraint(Sketcher.Constraint("Horizontal", 1))
sketch20.addConstraint(Sketcher.Constraint("Vertical", 2))
sketch20.addConstraint(Sketcher.Constraint("Horizontal", 3))
sketch20.addConstraint(Sketcher.Constraint("Vertical", 4))
sketch20.addConstraint(Sketcher.Constraint("Horizontal", 5))
sketch20.addConstraint(Sketcher.Constraint("Vertical", 6))
sketch20.addConstraint(Sketcher.Constraint("Horizontal", 7))
sketch20.addConstraint(Sketcher.Constraint("Coincident", 10, 3, 8, 3))
sketch20.addConstraint(Sketcher.Constraint("Coincident", 12, 3, 8, 3))
sketch20.addConstraint(Sketcher.Constraint("Coincident", 14, 3, 8, 3))
sketch20.addConstraint(Sketcher.Constraint("Equal", 8, 12))
sketch20.addConstraint(Sketcher.Constraint("Equal", 11, 13))
sketch20.addConstraint(Sketcher.Constraint("Horizontal", 9, 3, 11, 3))
sketch20.addConstraint(Sketcher.Constraint("Horizontal", 13, 3, 15, 3))
sketch20.addConstraint(Sketcher.Constraint("Horizontal", 1, 2, 4, 2))
sketch20.addConstraint(Sketcher.Constraint("Horizontal", 3, 2, 6, 2))
sketch20.addConstraint(Sketcher.Constraint("Vertical", 11, 3, 13, 3))
sketch20.addConstraint(Sketcher.Constraint("Equal", 3, 5))
sketch20.addConstraint(Sketcher.Constraint("Radius", 9, 1.0))
sketch20.addConstraint(Sketcher.Constraint("Radius", 8, 19.5))
sketch20.addConstraint(Sketcher.Constraint("DistanceX", 1, 1, 1, 2, 7.0))
sketch20.addConstraint(Sketcher.Constraint("DistanceY", -1, 1, 8, 3, 30.0))
sketch20.addConstraint(Sketcher.Constraint("DistanceY", -1, 1, 9, 3, 32.0))
sketch20.addConstraint(Sketcher.Constraint("DistanceX", -1, 1, 8, 3, 53.5))
sketch20.addConstraint(Sketcher.Constraint("DistanceX", -1, 1, 0, 2, 70.9))
sketch20.addConstraint(Sketcher.Constraint("DistanceX", -1, 1, 4, 2, 29.1))
sketch20.addConstraint(Sketcher.Constraint("DistanceY", 0, 2, 0, 1, 1.611722))
sketch20.addConstraint(Sketcher.Constraint("DistanceY", -1, 1, 0, 2, 29.194139))
pocket18 = body.newObject("PartDesign::Pocket", "Pocket017")
pocket18.Profile = sketch20
pocket18.Length = 1
doc.recompute()

datumplane = body.newObject("PartDesign::Plane", "DatumPlane")
datumplane.AttachmentSupport = (doc.getObject("XY_Plane"), [""])
datumplane.MapMode = "FlatFace"
datumplane.AttachmentOffset = App.Placement(App.Vector(0, 0, 2), App.Rotation())
mirrored = body.newObject("PartDesign::Mirrored", "Mirrored")
mirrored.Originals = [pocket18]
mirrored.MirrorPlane = (datumplane, [""])
body.Tip = mirrored

doc.recompute()
